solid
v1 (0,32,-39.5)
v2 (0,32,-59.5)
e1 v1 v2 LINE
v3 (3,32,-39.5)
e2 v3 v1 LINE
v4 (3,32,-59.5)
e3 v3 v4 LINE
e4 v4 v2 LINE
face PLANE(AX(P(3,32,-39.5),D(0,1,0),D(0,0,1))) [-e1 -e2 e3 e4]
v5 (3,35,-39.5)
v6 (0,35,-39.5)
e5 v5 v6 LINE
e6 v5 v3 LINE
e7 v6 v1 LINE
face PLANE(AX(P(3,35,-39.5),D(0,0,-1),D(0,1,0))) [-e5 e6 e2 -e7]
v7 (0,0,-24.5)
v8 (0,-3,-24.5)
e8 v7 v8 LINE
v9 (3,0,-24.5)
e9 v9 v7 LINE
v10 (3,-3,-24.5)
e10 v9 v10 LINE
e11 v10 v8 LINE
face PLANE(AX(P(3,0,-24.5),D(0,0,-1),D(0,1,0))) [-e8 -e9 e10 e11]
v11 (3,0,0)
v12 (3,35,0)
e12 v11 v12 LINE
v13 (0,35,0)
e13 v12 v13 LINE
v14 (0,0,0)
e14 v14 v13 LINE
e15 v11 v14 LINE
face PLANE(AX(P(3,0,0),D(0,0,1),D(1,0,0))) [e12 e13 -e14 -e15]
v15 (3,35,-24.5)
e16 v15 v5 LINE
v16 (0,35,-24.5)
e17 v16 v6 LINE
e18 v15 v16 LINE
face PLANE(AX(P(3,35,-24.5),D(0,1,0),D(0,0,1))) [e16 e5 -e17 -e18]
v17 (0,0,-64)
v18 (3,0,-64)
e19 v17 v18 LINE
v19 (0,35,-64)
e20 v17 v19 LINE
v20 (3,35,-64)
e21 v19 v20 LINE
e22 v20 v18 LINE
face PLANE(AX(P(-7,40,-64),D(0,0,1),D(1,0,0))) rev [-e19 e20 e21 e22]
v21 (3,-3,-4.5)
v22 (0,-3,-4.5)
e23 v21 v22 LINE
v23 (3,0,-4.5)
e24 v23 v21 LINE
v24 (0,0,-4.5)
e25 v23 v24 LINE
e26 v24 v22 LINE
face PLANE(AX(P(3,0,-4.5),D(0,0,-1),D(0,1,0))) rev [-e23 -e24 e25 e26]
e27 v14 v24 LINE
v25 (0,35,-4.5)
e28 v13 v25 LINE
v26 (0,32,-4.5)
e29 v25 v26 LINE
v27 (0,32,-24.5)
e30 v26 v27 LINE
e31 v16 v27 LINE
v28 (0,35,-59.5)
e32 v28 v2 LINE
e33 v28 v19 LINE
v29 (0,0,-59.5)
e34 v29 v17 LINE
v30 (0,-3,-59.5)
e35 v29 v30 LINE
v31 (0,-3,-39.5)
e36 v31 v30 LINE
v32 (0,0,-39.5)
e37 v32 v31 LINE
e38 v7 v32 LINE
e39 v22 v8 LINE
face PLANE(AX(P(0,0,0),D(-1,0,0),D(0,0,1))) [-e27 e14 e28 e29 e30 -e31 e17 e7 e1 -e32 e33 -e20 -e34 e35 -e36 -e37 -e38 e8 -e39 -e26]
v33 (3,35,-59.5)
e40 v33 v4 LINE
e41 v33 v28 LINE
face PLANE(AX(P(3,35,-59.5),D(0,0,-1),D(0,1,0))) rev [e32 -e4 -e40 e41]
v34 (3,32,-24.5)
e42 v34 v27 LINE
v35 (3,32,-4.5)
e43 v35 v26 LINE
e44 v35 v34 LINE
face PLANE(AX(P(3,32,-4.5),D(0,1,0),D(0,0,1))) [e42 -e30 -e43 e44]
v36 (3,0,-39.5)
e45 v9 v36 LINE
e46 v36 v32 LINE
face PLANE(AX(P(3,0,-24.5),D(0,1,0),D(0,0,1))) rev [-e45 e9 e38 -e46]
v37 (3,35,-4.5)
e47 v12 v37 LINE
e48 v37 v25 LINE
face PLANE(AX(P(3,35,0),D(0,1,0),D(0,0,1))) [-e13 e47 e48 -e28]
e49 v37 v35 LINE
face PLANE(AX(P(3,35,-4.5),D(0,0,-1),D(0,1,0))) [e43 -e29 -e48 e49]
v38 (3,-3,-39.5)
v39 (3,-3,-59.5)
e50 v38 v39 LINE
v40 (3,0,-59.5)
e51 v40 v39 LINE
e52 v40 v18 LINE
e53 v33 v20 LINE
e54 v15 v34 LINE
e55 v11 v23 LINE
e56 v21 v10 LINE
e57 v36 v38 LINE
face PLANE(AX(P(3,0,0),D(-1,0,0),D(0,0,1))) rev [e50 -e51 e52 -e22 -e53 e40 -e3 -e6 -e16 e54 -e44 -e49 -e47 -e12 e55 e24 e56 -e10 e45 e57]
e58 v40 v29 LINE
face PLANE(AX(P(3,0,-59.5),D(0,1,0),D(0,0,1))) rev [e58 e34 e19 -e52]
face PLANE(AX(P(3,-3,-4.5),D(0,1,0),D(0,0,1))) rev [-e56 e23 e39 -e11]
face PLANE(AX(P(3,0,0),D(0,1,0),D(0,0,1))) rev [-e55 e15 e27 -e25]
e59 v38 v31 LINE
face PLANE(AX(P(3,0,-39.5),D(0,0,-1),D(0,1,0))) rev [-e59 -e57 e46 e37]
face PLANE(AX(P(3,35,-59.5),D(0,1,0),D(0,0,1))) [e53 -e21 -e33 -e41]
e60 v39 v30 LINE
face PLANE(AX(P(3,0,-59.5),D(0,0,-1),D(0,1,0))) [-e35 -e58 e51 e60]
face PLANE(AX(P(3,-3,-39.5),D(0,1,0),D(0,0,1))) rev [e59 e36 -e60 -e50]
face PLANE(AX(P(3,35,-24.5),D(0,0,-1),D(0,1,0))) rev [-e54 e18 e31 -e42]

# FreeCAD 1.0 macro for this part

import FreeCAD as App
import Part
import Sketcher
from FreeCAD import Vector


def add_polygon(sketch, points):
    """Adds a closed chain of lines whose ends are joined by coincident constraints."""
    first, n = sketch.GeometryCount, len(points)
    for a, b in zip(points, points[1:] + points[:1]):
        sketch.addGeometry(Part.LineSegment(App.Vector(*a, 0), App.Vector(*b, 0)), False)
    for i in range(n):
        sketch.addConstraint(Sketcher.Constraint("Coincident", first + i, 2, first + (i + 1) % n, 1))

doc = App.newDocument("Part")
params = doc.addObject("Spreadsheet::Sheet", "Params")
for row, (alias, value) in enumerate([
    ("sketch1_width", "3 mm"),
    ("sketch1_width2", "35 mm"),
    ("sketch1_height", "15 mm"),
    ("sketch1_height2", "20 mm"),
    ("sketch1_height3", "7.5 mm"),
    ("pad1_length", "3 mm"),
    ("sketch2_width", "45 mm"),
    ("sketch2_height", "213 mm"),
    ("pocket1_length", "10 mm"),
], start=1):
    params.set(f"A{row}", alias)
    params.set(f"B{row}", "=" + value)
    params.setAlias(f"B{row}", alias)

body = doc.addObject("PartDesign::Body", "Body")

# Sketch on YZ plane
sketch1 = body.newObject("Sketcher::SketchObject", "Sketch")
sketch1.AttachmentSupport = (doc.getObject("YZ_Plane"), [""])
sketch1.MapMode = "FlatFace"
add_polygon(sketch1, [(0, -24.5), (0, -39.5), (-3, -39.5), (-3, -59.5), (0, -59.5), (0, -74.5), (-3, -74.5), (-3, -94.5), (0, -94.5), (0, -109.5), (-3, -109.5), (-3, -129.5), (0, -129.5), (0, -144.5), (-3, -144.5), (-3, -164.5), (0, -164.5), (0, -179.5), (-3, -179.5), (-3, -199.5), (0, -199.5), (0, -214.5), (-3, -214.5), (-3, -234.5), (0, -234.5), (0, -249.5), (-3, -249.5), (-3, -269.5), (0, -269.5), (0, -277), (35, -277), (35, -269.5), (32, -269.5), (32, -249.5), (35, -249.5), (35, -234.5), (32, -234.5), (32, -214.5), (35, -214.5), (35, -199.5), (32, -199.5), (32, -179.5), (35, -179.5), (35, -164.5), (32, -164.5), (32, -144.5), (35, -144.5), (35, -129.5), (32, -129.5), (32, -109.5), (35, -109.5), (35, -94.5), (32, -94.5), (32, -74.5), (35, -74.5), (35, -59.5), (32, -59.5), (32, -39.5), (35, -39.5), (35, -24.5), (32, -24.5), (32, -4.5), (35, -4.5), (35, 0), (0, 0), (0, -4.5), (-3, -4.5), (-3, -24.5)])  # lines 0-67
sketch1.addConstraint(Sketcher.Constraint("Vertical", 0))
sketch1.addConstraint(Sketcher.Constraint("Horizontal", 1))
sketch1.addConstraint(Sketcher.Constraint("Vertical", 2))
sketch1.addConstraint(Sketcher.Constraint("Horizontal", 3))
sketch1.addConstraint(Sketcher.Constraint("Vertical", 4))
sketch1.addConstraint(Sketcher.Constraint("Horizontal", 5))
sketch1.addConstraint(Sketcher.Constraint("Vertical", 6))
sketch1.addConstraint(Sketcher.Constraint("Horizontal", 7))
sketch1.addConstraint(Sketcher.Constraint("Vertical", 8))
sketch1.addConstraint(Sketcher.Constraint("Horizontal", 9))
sketch1.addConstraint(Sketcher.Constraint("Vertical", 10))
sketch1.addConstraint(Sketcher.Constraint("Horizontal", 11))
sketch1.addConstraint(Sketcher.Constraint("Vertical", 12))
sketch1.addConstraint(Sketcher.Constraint("Horizontal", 13))
sketch1.addConstraint(Sketcher.Constraint("Vertical", 14))
sketch1.addConstraint(Sketcher.Constraint("Horizontal", 15))
sketch1.addConstraint(Sketcher.Constraint("Vertical", 16))
sketch1.addConstraint(Sketcher.Constraint("Horizontal", 17))
sketch1.addConstraint(Sketcher.Constraint("Vertical", 18))
sketch1.addConstraint(Sketcher.Constraint("Horizontal", 19))
sketch1.addConstraint(Sketcher.Constraint("Vertical", 20))
sketch1.addConstraint(Sketcher.Constraint("Horizontal", 21))
sketch1.addConstraint(Sketcher.Constraint("Vertical", 22))
sketch1.addConstraint(Sketcher.Constraint("Horizontal", 23))
sketch1.addConstraint(Sketcher.Constraint("Vertical", 24))
sketch1.addConstraint(Sketcher.Constraint("Horizontal", 25))
sketch1.addConstraint(Sketcher.Constraint("Vertical", 26))
sketch1.addConstraint(Sketcher.Constraint("Horizontal", 27))
sketch1.addConstraint(Sketcher.Constraint("Vertical", 28))
sketch1.addConstraint(Sketcher.Constraint("Horizontal", 29))
sketch1.addConstraint(Sketcher.Constraint("Vertical", 30))
sketch1.addConstraint(Sketcher.Constraint("Horizontal", 31))
sketch1.addConstraint(Sketcher.Constraint("Vertical", 32))
sketch1.addConstraint(Sketcher.Constraint("Horizontal", 33))
sketch1.addConstraint(Sketcher.Constraint("Vertical", 34))
sketch1.addConstraint(Sketcher.Constraint("Horizontal", 35))
sketch1.addConstraint(Sketcher.Constraint("Vertical", 36))
sketch1.addConstraint(Sketcher.Constraint("Horizontal", 37))
sketch1.addConstraint(Sketcher.Constraint("Vertical", 38))
sketch1.addConstraint(Sketcher.Constraint("Horizontal", 39))
sketch1.addConstraint(Sketcher.Constraint("Vertical", 40))
sketch1.addConstraint(Sketcher.Constraint("Horizontal", 41))
sketch1.addConstraint(Sketcher.Constraint("Vertical", 42))
sketch1.addConstraint(Sketcher.Constraint("Horizontal", 43))
sketch1.addConstraint(Sketcher.Constraint("Vertical", 44))
sketch1.addConstraint(Sketcher.Constraint("Horizontal", 45))
sketch1.addConstraint(Sketcher.Constraint("Vertical", 46))
sketch1.addConstraint(Sketcher.Constraint("Horizontal", 47))
sketch1.addConstraint(Sketcher.Constraint("Vertical", 48))
sketch1.addConstraint(Sketcher.Constraint("Horizontal", 49))
sketch1.addConstraint(Sketcher.Constraint("Vertical", 50))
sketch1.addConstraint(Sketcher.Constraint("Horizontal", 51))
sketch1.addConstraint(Sketcher.Constraint("Vertical", 52))
sketch1.addConstraint(Sketcher.Constraint("Horizontal", 53))
sketch1.addConstraint(Sketcher.Constraint("Vertical", 54))
sketch1.addConstraint(Sketcher.Constraint("Horizontal", 55))
sketch1.addConstraint(Sketcher.Constraint("Vertical", 56))
sketch1.addConstraint(Sketcher.Constraint("Horizontal", 57))
sketch1.addConstraint(Sketcher.Constraint("Vertical", 58))
sketch1.addConstraint(Sketcher.Constraint("Horizontal", 59))
sketch1.addConstraint(Sketcher.Constraint("Vertical", 60))
sketch1.addConstraint(Sketcher.Constraint("Horizontal", 61))
sketch1.addConstraint(Sketcher.Constraint("Vertical", 62))
sketch1.addConstraint(Sketcher.Constraint("Horizontal", 63))
sketch1.addConstraint(Sketcher.Constraint("Vertical", 64))
sketch1.addConstraint(Sketcher.Constraint("Horizontal", 65))
sketch1.addConstraint(Sketcher.Constraint("Vertical", 66))
sketch1.addConstraint(Sketcher.Constraint("Horizontal", 67))
sketch1.addConstraint(Sketcher.Constraint("Coincident", 63, 2, -1, 1))
sketch1.addConstraint(Sketcher.Constraint("PointOnObject", 0, 2, -2))
sketch1.addConstraint(Sketcher.Constraint("PointOnObject", 3, 2, -2))
sketch1.addConstraint(Sketcher.Constraint("PointOnObject", 7, 2, -2))
sketch1.addConstraint(Sketcher.Constraint("PointOnObject", 11, 2, -2))
sketch1.addConstraint(Sketcher.Constraint("PointOnObject", 15, 2, -2))
sketch1.addConstraint(Sketcher.Constraint("PointOnObject", 19, 2, -2))
sketch1.addConstraint(Sketcher.Constraint("PointOnObject", 23, 2, -2))
sketch1.addConstraint(Sketcher.Constraint("PointOnObject", 27, 2, -2))
sketch1.addConstraint(Sketcher.Constraint("Horizontal", 27, 2, 30, 2))
sketch1.addConstraint(Sketcher.Constraint("Horizontal", 25, 2, 32, 2))
sketch1.addConstraint(Sketcher.Constraint("Horizontal", 23, 2, 34, 2))
sketch1.addConstraint(Sketcher.Constraint("Horizontal", 21, 2, 36, 2))
sketch1.addConstraint(Sketcher.Constraint("Horizontal", 19, 2, 38, 2))
sketch1.addConstraint(Sketcher.Constraint("Horizontal", 17, 2, 40, 2))
sketch1.addConstraint(Sketcher.Constraint("Horizontal", 15, 2, 42, 2))
sketch1.addConstraint(Sketcher.Constraint("Horizontal", 13, 2, 44, 2))
sketch1.addConstraint(Sketcher.Constraint("Horizontal", 11, 2, 46, 2))
sketch1.addConstraint(Sketcher.Constraint("Horizontal", 9, 2, 48, 2))
sketch1.addConstraint(Sketcher.Constraint("Horizontal", 7, 2, 50, 2))
sketch1.addConstraint(Sketcher.Constraint("Horizontal", 5, 2, 52, 2))
sketch1.addConstraint(Sketcher.Constraint("Horizontal", 3, 2, 54, 2))
sketch1.addConstraint(Sketcher.Constraint("Horizontal", 1, 2, 56, 2))
sketch1.addConstraint(Sketcher.Constraint("Horizontal", 61, 2, 64, 2))
sketch1.addConstraint(Sketcher.Constraint("Horizontal", 59, 2, 66, 2))
sketch1.addConstraint(Sketcher.Constraint("Vertical", 2, 2, 5, 2))
sketch1.addConstraint(Sketcher.Constraint("Vertical", 6, 2, 9, 2))
sketch1.addConstraint(Sketcher.Constraint("Vertical", 10, 2, 13, 2))
sketch1.addConstraint(Sketcher.Constraint("Vertical", 14, 2, 17, 2))
sketch1.addConstraint(Sketcher.Constraint("Vertical", 18, 2, 21, 2))
sketch1.addConstraint(Sketcher.Constraint("Vertical", 22, 2, 25, 2))
sketch1.addConstraint(Sketcher.Constraint("Vertical", 30, 2, 33, 2))
sketch1.addConstraint(Sketcher.Constraint("Vertical", 32, 2, 35, 2))
sketch1.addConstraint(Sketcher.Constraint("Vertical", 34, 2, 37, 2))
sketch1.addConstraint(Sketcher.Constraint("Vertical", 36, 2, 39, 2))
sketch1.addConstraint(Sketcher.Constraint("Vertical", 38, 2, 41, 2))
sketch1.addConstraint(Sketcher.Constraint("Vertical", 40, 2, 43, 2))
sketch1.addConstraint(Sketcher.Constraint("Vertical", 42, 2, 45, 2))
sketch1.addConstraint(Sketcher.Constraint("Vertical", 44, 2, 47, 2))
sketch1.addConstraint(Sketcher.Constraint("Vertical", 46, 2, 49, 2))
sketch1.addConstraint(Sketcher.Constraint("Vertical", 48, 2, 51, 2))
sketch1.addConstraint(Sketcher.Constraint("Vertical", 50, 2, 53, 2))
sketch1.addConstraint(Sketcher.Constraint("Vertical", 52, 2, 55, 2))
sketch1.addConstraint(Sketcher.Constraint("Vertical", 54, 2, 57, 2))
sketch1.addConstraint(Sketcher.Constraint("Vertical", 56, 2, 59, 2))
sketch1.addConstraint(Sketcher.Constraint("Vertical", 58, 2, 61, 2))
sketch1.addConstraint(Sketcher.Constraint("Vertical", 26, 2, 65, 2))
sketch1.addConstraint(Sketcher.Constraint("Equal", 27, 31))
sketch1.addConstraint(Sketcher.Constraint("Equal", 0, 4))
sketch1.addConstraint(Sketcher.Constraint("Equal", 2, 6))
sketch1.addConstraint(Sketcher.Constraint("Equal", 4, 8))
sketch1.addConstraint(Sketcher.Constraint("Equal", 6, 10))
sketch1.addConstraint(Sketcher.Constraint("Equal", 8, 12))
sketch1.addConstraint(Sketcher.Constraint("Equal", 10, 14))
sketch1.addConstraint(Sketcher.Constraint("Equal", 12, 16))
sketch1.addConstraint(Sketcher.Constraint("Equal", 14, 18))
sketch1.addConstraint(Sketcher.Constraint("Equal", 16, 20))
sketch1.addConstraint(Sketcher.Constraint("Equal", 18, 22))
sketch1.addConstraint(Sketcher.Constraint("Equal", 20, 24))
sketch1.addConstraint(Sketcher.Constraint("Equal", 22, 26))
sketch1.addConstraint(Sketcher.Constraint("Equal", 56, 60))
sketch1.addConstraint(Sketcher.Constraint("DistanceX", 1, 2, 1, 1, 3.0))
sketch1.addConstraint(Sketcher.Constraint("DistanceX", 29, 1, 29, 2, 35.0))
sketch1.addConstraint(Sketcher.Constraint("DistanceY", 0, 2, 0, 1, 15.0))
sketch1.addConstraint(Sketcher.Constraint("DistanceY", 2, 2, 2, 1, 20.0))
sketch1.addConstraint(Sketcher.Constraint("DistanceY", 28, 2, 28, 1, 7.5))
sketch1.addConstraint(Sketcher.Constraint("DistanceY", 62, 1, 62, 2, 4.5))
sketch1.setExpression("Constraints[197]", "Params.sketch1_width")
sketch1.setExpression("Constraints[198]", "Params.sketch1_width2")
sketch1.setExpression("Constraints[199]", "Params.sketch1_height")
sketch1.setExpression("Constraints[200]", "Params.sketch1_height2")
sketch1.setExpression("Constraints[201]", "Params.sketch1_height3")
pad1 = body.newObject("PartDesign::Pad", "Pad")
pad1.Profile = sketch1
pad1.setExpression("Length", "Params.pad1_length")

# Sketch on YZ plane
sketch2 = body.newObject("Sketcher::SketchObject", "Sketch001")
sketch2.AttachmentSupport = (doc.getObject("YZ_Plane"), [""])
sketch2.MapMode = "FlatFace"
sketch2.AttachmentOffset = App.Placement(Vector(0, 0, 3), App.Rotation())
add_polygon(sketch2, [(40, -64), (-5, -64), (-5, -277), (40, -277)])  # lines 0-3
sketch2.addConstraint(Sketcher.Constraint("Horizontal", 0))
sketch2.addConstraint(Sketcher.Constraint("Vertical", 1))
sketch2.addConstraint(Sketcher.Constraint("Horizontal", 2))
sketch2.addConstraint(Sketcher.Constraint("Vertical", 3))
sketch2.addConstraint(Sketcher.Constraint("DistanceX", 0, 2, 0, 1, 45.0))
sketch2.addConstraint(Sketcher.Constraint("DistanceY", 1, 2, 1, 1, 213.0))
sketch2.addConstraint(Sketcher.Constraint("DistanceX", 0, 2, -1, 1, 5.0))
sketch2.addConstraint(Sketcher.Constraint("DistanceY", 0, 2, -1, 1, 64.0))
sketch2.setExpression("Constraints[8]", "Params.sketch2_width")
sketch2.setExpression("Constraints[9]", "Params.sketch2_height")
pocket1 = body.newObject("PartDesign::Pocket", "Pocket")
pocket1.Profile = sketch2
pocket1.setExpression("Length", "Params.pocket1_length")

doc.recompute()
